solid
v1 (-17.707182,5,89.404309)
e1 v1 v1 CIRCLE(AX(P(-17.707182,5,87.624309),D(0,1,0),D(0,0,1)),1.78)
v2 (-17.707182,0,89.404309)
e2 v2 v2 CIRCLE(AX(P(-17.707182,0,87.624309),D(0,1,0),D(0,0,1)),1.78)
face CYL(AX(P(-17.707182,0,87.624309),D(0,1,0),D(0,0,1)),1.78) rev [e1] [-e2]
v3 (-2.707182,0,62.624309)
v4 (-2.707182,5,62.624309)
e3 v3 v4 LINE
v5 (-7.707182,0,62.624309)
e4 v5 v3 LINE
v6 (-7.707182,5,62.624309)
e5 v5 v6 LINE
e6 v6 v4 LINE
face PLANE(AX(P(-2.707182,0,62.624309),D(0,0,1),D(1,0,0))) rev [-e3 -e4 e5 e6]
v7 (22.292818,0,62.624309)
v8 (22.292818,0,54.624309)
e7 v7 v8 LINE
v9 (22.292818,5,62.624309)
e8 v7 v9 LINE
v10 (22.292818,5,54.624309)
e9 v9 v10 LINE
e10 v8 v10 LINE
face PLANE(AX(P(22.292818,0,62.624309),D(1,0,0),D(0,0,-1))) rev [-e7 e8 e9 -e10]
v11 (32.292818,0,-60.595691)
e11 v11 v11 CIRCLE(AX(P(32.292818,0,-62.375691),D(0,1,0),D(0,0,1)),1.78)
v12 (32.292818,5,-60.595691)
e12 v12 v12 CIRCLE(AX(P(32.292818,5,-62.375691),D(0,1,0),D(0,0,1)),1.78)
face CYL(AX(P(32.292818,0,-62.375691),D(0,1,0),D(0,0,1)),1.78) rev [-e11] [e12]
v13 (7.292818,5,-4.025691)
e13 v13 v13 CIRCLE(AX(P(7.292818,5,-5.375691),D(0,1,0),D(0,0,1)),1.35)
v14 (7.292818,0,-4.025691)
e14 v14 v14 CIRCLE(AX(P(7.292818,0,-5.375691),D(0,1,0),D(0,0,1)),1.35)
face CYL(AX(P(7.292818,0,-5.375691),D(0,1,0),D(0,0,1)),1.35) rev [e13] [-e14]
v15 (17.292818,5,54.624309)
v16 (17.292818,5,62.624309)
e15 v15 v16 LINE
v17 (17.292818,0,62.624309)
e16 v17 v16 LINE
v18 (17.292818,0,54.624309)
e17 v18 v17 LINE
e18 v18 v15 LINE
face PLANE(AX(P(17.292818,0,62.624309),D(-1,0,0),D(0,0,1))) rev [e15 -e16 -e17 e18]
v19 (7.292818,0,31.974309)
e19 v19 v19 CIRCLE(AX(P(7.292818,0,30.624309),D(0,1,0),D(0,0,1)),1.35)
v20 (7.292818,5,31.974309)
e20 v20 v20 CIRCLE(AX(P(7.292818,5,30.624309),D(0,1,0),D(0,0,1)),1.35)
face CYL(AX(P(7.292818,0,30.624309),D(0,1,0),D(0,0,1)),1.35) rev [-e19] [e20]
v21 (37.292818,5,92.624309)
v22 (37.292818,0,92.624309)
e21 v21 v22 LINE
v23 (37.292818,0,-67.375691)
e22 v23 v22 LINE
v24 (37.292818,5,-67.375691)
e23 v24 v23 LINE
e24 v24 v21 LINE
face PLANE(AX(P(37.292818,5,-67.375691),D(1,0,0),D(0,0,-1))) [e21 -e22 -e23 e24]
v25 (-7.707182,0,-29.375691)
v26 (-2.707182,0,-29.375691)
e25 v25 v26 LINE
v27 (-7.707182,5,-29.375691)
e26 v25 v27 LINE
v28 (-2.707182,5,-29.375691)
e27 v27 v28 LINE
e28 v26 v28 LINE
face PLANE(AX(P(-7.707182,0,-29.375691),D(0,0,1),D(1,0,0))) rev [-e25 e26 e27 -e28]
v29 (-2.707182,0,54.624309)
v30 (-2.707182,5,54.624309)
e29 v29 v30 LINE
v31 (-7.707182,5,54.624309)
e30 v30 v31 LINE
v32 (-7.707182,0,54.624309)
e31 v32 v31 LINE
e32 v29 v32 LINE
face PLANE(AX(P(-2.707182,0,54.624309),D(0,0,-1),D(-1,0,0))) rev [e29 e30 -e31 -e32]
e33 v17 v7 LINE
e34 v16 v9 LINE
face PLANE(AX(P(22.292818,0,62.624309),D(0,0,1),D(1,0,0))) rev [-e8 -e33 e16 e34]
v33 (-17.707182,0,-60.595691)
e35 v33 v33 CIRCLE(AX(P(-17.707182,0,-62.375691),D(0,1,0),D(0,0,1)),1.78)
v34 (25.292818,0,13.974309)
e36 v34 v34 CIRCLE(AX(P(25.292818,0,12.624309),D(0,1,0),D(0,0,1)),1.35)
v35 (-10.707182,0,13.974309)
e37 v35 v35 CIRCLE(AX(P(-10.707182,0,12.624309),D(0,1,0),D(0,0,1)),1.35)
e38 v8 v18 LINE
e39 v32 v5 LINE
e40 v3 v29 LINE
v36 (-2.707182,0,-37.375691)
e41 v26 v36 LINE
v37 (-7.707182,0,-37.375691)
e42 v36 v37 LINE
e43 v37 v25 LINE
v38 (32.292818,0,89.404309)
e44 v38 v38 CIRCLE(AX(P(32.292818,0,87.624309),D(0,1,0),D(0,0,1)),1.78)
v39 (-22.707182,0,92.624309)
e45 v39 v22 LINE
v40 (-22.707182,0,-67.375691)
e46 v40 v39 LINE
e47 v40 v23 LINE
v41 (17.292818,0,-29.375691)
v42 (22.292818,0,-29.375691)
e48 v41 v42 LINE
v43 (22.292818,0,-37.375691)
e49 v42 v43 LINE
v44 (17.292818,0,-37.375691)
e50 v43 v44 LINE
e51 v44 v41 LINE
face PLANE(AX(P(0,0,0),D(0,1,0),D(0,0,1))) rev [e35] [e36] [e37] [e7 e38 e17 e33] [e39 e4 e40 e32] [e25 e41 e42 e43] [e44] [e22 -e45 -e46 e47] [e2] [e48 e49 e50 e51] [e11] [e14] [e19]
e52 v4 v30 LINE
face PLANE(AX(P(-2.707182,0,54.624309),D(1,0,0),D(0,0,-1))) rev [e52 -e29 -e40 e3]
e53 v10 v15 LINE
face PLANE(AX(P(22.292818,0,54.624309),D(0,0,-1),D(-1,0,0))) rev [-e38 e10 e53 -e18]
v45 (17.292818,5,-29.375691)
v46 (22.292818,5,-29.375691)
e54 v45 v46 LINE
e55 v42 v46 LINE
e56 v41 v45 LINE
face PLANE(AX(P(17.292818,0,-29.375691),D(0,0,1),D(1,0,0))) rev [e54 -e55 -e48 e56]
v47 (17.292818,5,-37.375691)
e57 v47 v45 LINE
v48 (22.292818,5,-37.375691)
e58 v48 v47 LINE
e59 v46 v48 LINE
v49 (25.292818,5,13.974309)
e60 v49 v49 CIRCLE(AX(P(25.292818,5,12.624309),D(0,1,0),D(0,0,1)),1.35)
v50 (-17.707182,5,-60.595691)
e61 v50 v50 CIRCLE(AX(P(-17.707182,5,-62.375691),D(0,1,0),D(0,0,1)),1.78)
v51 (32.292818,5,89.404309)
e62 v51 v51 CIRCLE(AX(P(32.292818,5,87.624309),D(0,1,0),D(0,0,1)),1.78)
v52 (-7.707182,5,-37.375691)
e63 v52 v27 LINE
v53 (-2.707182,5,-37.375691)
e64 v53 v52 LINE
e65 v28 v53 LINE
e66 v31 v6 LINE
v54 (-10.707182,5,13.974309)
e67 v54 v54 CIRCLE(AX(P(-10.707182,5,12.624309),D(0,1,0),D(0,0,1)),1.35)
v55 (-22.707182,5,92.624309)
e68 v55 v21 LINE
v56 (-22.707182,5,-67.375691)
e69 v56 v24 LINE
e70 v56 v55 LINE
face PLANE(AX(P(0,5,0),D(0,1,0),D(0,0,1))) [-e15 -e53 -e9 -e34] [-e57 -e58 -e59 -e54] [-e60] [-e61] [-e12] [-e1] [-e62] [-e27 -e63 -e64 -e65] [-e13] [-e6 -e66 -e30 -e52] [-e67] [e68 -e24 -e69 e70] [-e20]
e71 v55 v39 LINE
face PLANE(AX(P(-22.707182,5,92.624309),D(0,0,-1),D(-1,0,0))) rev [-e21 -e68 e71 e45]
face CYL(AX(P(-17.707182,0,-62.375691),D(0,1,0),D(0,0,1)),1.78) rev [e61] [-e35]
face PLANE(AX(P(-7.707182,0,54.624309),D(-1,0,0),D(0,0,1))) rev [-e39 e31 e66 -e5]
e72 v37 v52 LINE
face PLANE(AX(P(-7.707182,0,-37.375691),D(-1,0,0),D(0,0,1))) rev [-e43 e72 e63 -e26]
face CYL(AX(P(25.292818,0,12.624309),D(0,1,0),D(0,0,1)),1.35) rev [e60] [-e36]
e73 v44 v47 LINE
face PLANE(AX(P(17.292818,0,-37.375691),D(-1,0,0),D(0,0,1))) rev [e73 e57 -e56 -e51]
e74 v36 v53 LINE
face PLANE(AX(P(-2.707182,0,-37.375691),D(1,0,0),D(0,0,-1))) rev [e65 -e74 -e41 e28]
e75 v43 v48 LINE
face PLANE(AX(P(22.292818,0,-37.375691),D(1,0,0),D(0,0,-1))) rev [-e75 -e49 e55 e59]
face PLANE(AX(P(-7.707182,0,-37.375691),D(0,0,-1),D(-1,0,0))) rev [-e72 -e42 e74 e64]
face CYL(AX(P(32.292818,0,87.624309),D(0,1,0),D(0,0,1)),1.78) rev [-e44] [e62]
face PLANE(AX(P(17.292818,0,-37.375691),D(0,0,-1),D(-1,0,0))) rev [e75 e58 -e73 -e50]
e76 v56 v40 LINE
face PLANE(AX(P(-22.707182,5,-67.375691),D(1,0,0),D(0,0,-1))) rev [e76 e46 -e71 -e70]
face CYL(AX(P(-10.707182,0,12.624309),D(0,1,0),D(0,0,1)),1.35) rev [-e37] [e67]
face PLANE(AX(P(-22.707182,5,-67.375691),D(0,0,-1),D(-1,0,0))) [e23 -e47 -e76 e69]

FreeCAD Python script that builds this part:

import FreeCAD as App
import Part
import Sketcher
Q = App.Units.Quantity

doc = App.newDocument("Part")
body = doc.addObject("PartDesign::Body", "Body")

sketch1 = body.newObject("Sketcher::SketchObject", "Sketch")
sketch1.AttachmentSupport = (doc.getObject("XZ_Plane"), [""])
sketch1.MapMode = "FlatFace"
sketch1.addGeometry(Part.LineSegment(App.Vector(-23, -67, 0), App.Vector(-23, 93, 0)), False)
sketch1.addGeometry(Part.LineSegment(App.Vector(-23, 93, 0), App.Vector(37, 93, 0)), False)
sketch1.addGeometry(Part.LineSegment(App.Vector(37, 93, 0), App.Vector(37, -67, 0)), False)
sketch1.addGeometry(Part.LineSegment(App.Vector(37, -67, 0), App.Vector(-23, -67, 0)), False)
sketch1.addConstraint(Sketcher.Constraint("Coincident", 0, 2, 1, 1))
sketch1.addConstraint(Sketcher.Constraint("Coincident", 1, 2, 2, 1))
sketch1.addConstraint(Sketcher.Constraint("Coincident", 2, 2, 3, 1))
sketch1.addConstraint(Sketcher.Constraint("Coincident", 3, 2, 0, 1))
sketch1.addConstraint(Sketcher.Constraint("Vertical", 0))
sketch1.addConstraint(Sketcher.Constraint("Horizontal", 1))
sketch1.addConstraint(Sketcher.Constraint("Vertical", 2))
sketch1.addConstraint(Sketcher.Constraint("Horizontal", 3))
sketch1.addConstraint(Sketcher.Constraint("DistanceX", 1, 1, 1, 2, Q("60 mm")))
sketch1.addConstraint(Sketcher.Constraint("DistanceY", 0, 1, 0, 2, Q("160 mm")))
sketch1.addConstraint(Sketcher.Constraint("DistanceY", -1, 1, 0, 2, Q("92.624309 mm")))
sketch1.addConstraint(Sketcher.Constraint("DistanceX", 0, 2, -1, 1, Q("22.707182 mm")))
pad1 = body.newObject("PartDesign::Pad", "Pad")
pad1.Profile = sketch1
pad1.Length = 5
pad1.Reversed = True

sketch2 = body.newObject("Sketcher::SketchObject", "Sketch001")
sketch2.AttachmentSupport = (doc.getObject("XZ_Plane"), [""])
sketch2.MapMode = "FlatFace"
sketch2.AttachmentOffset = App.Placement(App.Vector(0, 0, -5), App.Rotation())
sketch2.addGeometry(Part.Circle(App.Vector(-17.7, -62.4, 0), App.Vector(0, 0, 1), 1.8), False)
sketch2.addGeometry(Part.Circle(App.Vector(32.3, -62.4, 0), App.Vector(0, 0, 1), 1.8), False)
sketch2.addGeometry(Part.Circle(App.Vector(32.3, 87.6, 0), App.Vector(0, 0, 1), 1.8), False)
sketch2.addGeometry(Part.Circle(App.Vector(-17.7, 87.6, 0), App.Vector(0, 0, 1), 1.8), False)
sketch2.addConstraint(Sketcher.Constraint("Equal", 0, 1))
sketch2.addConstraint(Sketcher.Constraint("Equal", 1, 2))
sketch2.addConstraint(Sketcher.Constraint("Equal", 2, 3))
sketch2.addConstraint(Sketcher.Constraint("Horizontal", 0, 3, 1, 3))
sketch2.addConstraint(Sketcher.Constraint("Horizontal", 2, 3, 3, 3))
sketch2.addConstraint(Sketcher.Constraint("Vertical", 1, 3, 2, 3))
sketch2.addConstraint(Sketcher.Constraint("Vertical", 0, 3, 3, 3))
sketch2.addConstraint(Sketcher.Constraint("Diameter", 0, Q("3.56 mm")))
sketch2.addConstraint(Sketcher.Constraint("DistanceX", 0, 3, 1, 3, Q("50 mm")))
sketch2.addConstraint(Sketcher.Constraint("DistanceY", 1, 3, 2, 3, Q("150 mm")))
sketch2.addConstraint(Sketcher.Constraint("DistanceY", 0, 3, -1, 1, Q("62.375691 mm")))
sketch2.addConstraint(Sketcher.Constraint("DistanceX", 0, 3, -1, 1, Q("17.707182 mm")))
pocket1 = body.newObject("PartDesign::Pocket", "Pocket")
pocket1.Profile = sketch2
pocket1.Type = "ThroughAll"
pocket1.Reversed = True

sketch3 = body.newObject("Sketcher::SketchObject", "Sketch002")
sketch3.AttachmentSupport = (doc.getObject("XZ_Plane"), [""])
sketch3.MapMode = "FlatFace"
sketch3.AttachmentOffset = App.Placement(App.Vector(0, 0, -5), App.Rotation())
sketch3.addGeometry(Part.Circle(App.Vector(25.3, 12.6, 0), App.Vector(0, 0, 1), 1.4), False)
sketch3.addGeometry(Part.Circle(App.Vector(-10.7, 12.6, 0), App.Vector(0, 0, 1), 1.4), False)
sketch3.addGeometry(Part.Circle(App.Vector(7.3, -5.4, 0), App.Vector(0, 0, 1), 1.4), False)
sketch3.addGeometry(Part.Circle(App.Vector(7.3, 30.6, 0), App.Vector(0, 0, 1), 1.4), False)
sketch3.addConstraint(Sketcher.Constraint("Equal", 0, 1))
sketch3.addConstraint(Sketcher.Constraint("Equal", 1, 2))
sketch3.addConstraint(Sketcher.Constraint("Equal", 2, 3))
sketch3.addConstraint(Sketcher.Constraint("Horizontal", 0, 3, 1, 3))
sketch3.addConstraint(Sketcher.Constraint("Vertical", 2, 3, 3, 3))
sketch3.addConstraint(Sketcher.Constraint("Diameter", 0, Q("2.7 mm")))
sketch3.addConstraint(Sketcher.Constraint("DistanceX", 1, 3, 0, 3, Q("36 mm")))
sketch3.addConstraint(Sketcher.Constraint("DistanceX", 2, 3, 0, 3, Q("18 mm")))
sketch3.addConstraint(Sketcher.Constraint("DistanceY", 2, 3, 0, 3, Q("18 mm")))
sketch3.addConstraint(Sketcher.Constraint("DistanceY", 0, 3, 3, 3, Q("18 mm")))
sketch3.addConstraint(Sketcher.Constraint("DistanceY", -1, 1, 0, 3, Q("12.624309 mm")))
sketch3.addConstraint(Sketcher.Constraint("DistanceX", -1, 1, 0, 3, Q("25.292818 mm")))
pocket2 = body.newObject("PartDesign::Pocket", "Pocket001")
pocket2.Profile = sketch3
pocket2.Type = "ThroughAll"
pocket2.Reversed = True

sketch4 = body.newObject("Sketcher::SketchObject", "Sketch003")
sketch4.AttachmentSupport = (doc.getObject("XZ_Plane"), [""])
sketch4.MapMode = "FlatFace"
sketch4.AttachmentOffset = App.Placement(App.Vector(0, 0, -5), App.Rotation())
sketch4.addGeometry(Part.LineSegment(App.Vector(-8, -37, 0), App.Vector(-8, -29, 0)), False)
sketch4.addGeometry(Part.LineSegment(App.Vector(-8, -29, 0), App.Vector(-3, -29, 0)), False)
sketch4.addGeometry(Part.LineSegment(App.Vector(-3, -29, 0), App.Vector(-3, -37, 0)), False)
sketch4.addGeometry(Part.LineSegment(App.Vector(-3, -37, 0), App.Vector(-8, -37, 0)), False)
sketch4.addGeometry(Part.LineSegment(App.Vector(17, -37, 0), App.Vector(17, -29, 0)), False)
sketch4.addGeometry(Part.LineSegment(App.Vector(17, -29, 0), App.Vector(22, -29, 0)), False)
sketch4.addGeometry(Part.LineSegment(App.Vector(22, -29, 0), App.Vector(22, -37, 0)), False)
sketch4.addGeometry(Part.LineSegment(App.Vector(22, -37, 0), App.Vector(17, -37, 0)), False)
sketch4.addGeometry(Part.LineSegment(App.Vector(17, 55, 0), App.Vector(17, 63, 0)), False)
sketch4.addGeometry(Part.LineSegment(App.Vector(17, 63, 0), App.Vector(22, 63, 0)), False)
sketch4.addGeometry(Part.LineSegment(App.Vector(22, 63, 0), App.Vector(22, 55, 0)), False)
sketch4.addGeometry(Part.LineSegment(App.Vector(22, 55, 0), App.Vector(17, 55, 0)), False)
sketch4.addGeometry(Part.LineSegment(App.Vector(-8, 55, 0), App.Vector(-8, 63, 0)), False)
sketch4.addGeometry(Part.LineSegment(App.Vector(-8, 63, 0), App.Vector(-3, 63, 0)), False)
sketch4.addGeometry(Part.LineSegment(App.Vector(-3, 63, 0), App.Vector(-3, 55, 0)), False)
sketch4.addGeometry(Part.LineSegment(App.Vector(-3, 55, 0), App.Vector(-8, 55, 0)), False)
sketch4.addConstraint(Sketcher.Constraint("Coincident", 0, 2, 1, 1))
sketch4.addConstraint(Sketcher.Constraint("Coincident", 1, 2, 2, 1))
sketch4.addConstraint(Sketcher.Constraint("Coincident", 2, 2, 3, 1))
sketch4.addConstraint(Sketcher.Constraint("Coincident", 3, 2, 0, 1))
sketch4.addConstraint(Sketcher.Constraint("Coincident", 4, 2, 5, 1))
sketch4.addConstraint(Sketcher.Constraint("Coincident", 5, 2, 6, 1))
sketch4.addConstraint(Sketcher.Constraint("Coincident", 6, 2, 7, 1))
sketch4.addConstraint(Sketcher.Constraint("Coincident", 7, 2, 4, 1))
sketch4.addConstraint(Sketcher.Constraint("Coincident", 8, 2, 9, 1))
sketch4.addConstraint(Sketcher.Constraint("Coincident", 9, 2, 10, 1))
sketch4.addConstraint(Sketcher.Constraint("Coincident", 10, 2, 11, 1))
sketch4.addConstraint(Sketcher.Constraint("Coincident", 11, 2, 8, 1))
sketch4.addConstraint(Sketcher.Constraint("Coincident", 12, 2, 13, 1))
sketch4.addConstraint(Sketcher.Constraint("Coincident", 13, 2, 14, 1))
sketch4.addConstraint(Sketcher.Constraint("Coincident", 14, 2, 15, 1))
sketch4.addConstraint(Sketcher.Constraint("Coincident", 15, 2, 12, 1))
sketch4.addConstraint(Sketcher.Constraint("Vertical", 0))
sketch4.addConstraint(Sketcher.Constraint("Horizontal", 1))
sketch4.addConstraint(Sketcher.Constraint("Vertical", 2))
sketch4.addConstraint(Sketcher.Constraint("Horizontal", 3))
sketch4.addConstraint(Sketcher.Constraint("Vertical", 4))
sketch4.addConstraint(Sketcher.Constraint("Horizontal", 5))
sketch4.addConstraint(Sketcher.Constraint("Vertical", 6))
sketch4.addConstraint(Sketcher.Constraint("Horizontal", 7))
sketch4.addConstraint(Sketcher.Constraint("Vertical", 8))
sketch4.addConstraint(Sketcher.Constraint("Horizontal", 9))
sketch4.addConstraint(Sketcher.Constraint("Vertical", 10))
sketch4.addConstraint(Sketcher.Constraint("Horizontal", 11))
sketch4.addConstraint(Sketcher.Constraint("Vertical", 12))
sketch4.addConstraint(Sketcher.Constraint("Horizontal", 13))
sketch4.addConstraint(Sketcher.Constraint("Vertical", 14))
sketch4.addConstraint(Sketcher.Constraint("Horizontal", 15))
sketch4.addConstraint(Sketcher.Constraint("Horizontal", 1, 2, 4, 2))
sketch4.addConstraint(Sketcher.Constraint("Horizontal", 3, 2, 6, 2))
sketch4.addConstraint(Sketcher.Constraint("Horizontal", 9, 2, 12, 2))
sketch4.addConstraint(Sketcher.Constraint("Horizontal", 11, 2, 14, 2))
sketch4.addConstraint(Sketcher.Constraint("Vertical", 7, 2, 8, 2))
sketch4.addConstraint(Sketcher.Constraint("Vertical", 6, 2, 9, 2))
sketch4.addConstraint(Sketcher.Constraint("Vertical", 3, 2, 12, 2))
sketch4.addConstraint(Sketcher.Constraint("Vertical", 2, 2, 13, 2))
sketch4.addConstraint(Sketcher.Constraint("Equal", 3, 5))
sketch4.addConstraint(Sketcher.Constraint("Equal", 6, 8))
sketch4.addConstraint(Sketcher.Constraint("DistanceX", 1, 1, 1, 2, Q("5 mm")))
sketch4.addConstraint(Sketcher.Constraint("DistanceY", 0, 1, 0, 2, Q("8 mm")))
sketch4.addConstraint(Sketcher.Constraint("DistanceX", 1, 2, 4, 2, Q("20 mm")))
sketch4.addConstraint(Sketcher.Constraint("DistanceY", 4, 2, 8, 2, Q("92 mm")))
sketch4.addConstraint(Sketcher.Constraint("DistanceY", 0, 2, -1, 1, Q("29.375691 mm")))
sketch4.addConstraint(Sketcher.Constraint("DistanceX", 0, 2, -1, 1, Q("7.707182 mm")))
pocket3 = body.newObject("PartDesign::Pocket", "Pocket002")
pocket3.Profile = sketch4
pocket3.Type = "ThroughAll"
pocket3.Reversed = True

doc.recompute()
